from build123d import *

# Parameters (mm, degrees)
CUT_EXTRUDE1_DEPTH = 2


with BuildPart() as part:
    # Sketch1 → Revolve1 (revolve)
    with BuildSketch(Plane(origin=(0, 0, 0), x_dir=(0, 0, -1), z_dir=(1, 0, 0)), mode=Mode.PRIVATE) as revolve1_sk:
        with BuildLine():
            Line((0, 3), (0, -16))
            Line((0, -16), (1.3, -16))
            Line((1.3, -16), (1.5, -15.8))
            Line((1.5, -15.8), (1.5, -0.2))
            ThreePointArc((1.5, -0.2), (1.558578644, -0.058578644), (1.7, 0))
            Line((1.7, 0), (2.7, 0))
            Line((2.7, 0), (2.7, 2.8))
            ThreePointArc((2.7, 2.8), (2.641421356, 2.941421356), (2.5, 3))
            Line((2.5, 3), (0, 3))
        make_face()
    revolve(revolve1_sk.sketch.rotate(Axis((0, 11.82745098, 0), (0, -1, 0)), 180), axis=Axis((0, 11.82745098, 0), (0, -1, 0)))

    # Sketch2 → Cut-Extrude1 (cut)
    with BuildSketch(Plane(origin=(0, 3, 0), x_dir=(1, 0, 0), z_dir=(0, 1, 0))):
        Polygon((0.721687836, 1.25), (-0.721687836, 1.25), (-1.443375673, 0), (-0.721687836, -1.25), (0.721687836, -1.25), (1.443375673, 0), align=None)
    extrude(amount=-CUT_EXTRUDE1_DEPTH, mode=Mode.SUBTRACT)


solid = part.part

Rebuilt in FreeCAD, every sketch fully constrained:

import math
import FreeCAD as App
import Part
import Sketcher
Q = App.Units.Quantity

doc = App.newDocument("Part")
body = doc.addObject("PartDesign::Body", "Body")

# Sketch on YZ plane
sketch1 = doc.addObject("Sketcher::SketchObject", "Sketch")
body.addObject(sketch1)
sketch1.AttachmentSupport = (doc.YZ_Plane, [""])
sketch1.MapMode = "FlatFace"
sketch1.addGeometry([
    Part.LineSegment(App.Vector(3, 0, 0), App.Vector(-16, 0, 0)),  # 0
    Part.LineSegment(App.Vector(-16, 0, 0), App.Vector(-16, -1.3, 0)),  # 1
    Part.LineSegment(App.Vector(-16, -1.3, 0), App.Vector(-15.8, -1.5, 0)),  # 2
    Part.LineSegment(App.Vector(-15.8, -1.5, 0), App.Vector(-0.2, -1.5, 0)),  # 3
    Part.ArcOfCircle(Part.Circle(App.Vector(-0.2, -1.7, 0), App.Vector(0, 0, 1), 0.2), math.radians(0), math.radians(90)),  # 4
    Part.LineSegment(App.Vector(0, -1.7, 0), App.Vector(0, -2.7, 0)),  # 5
    Part.LineSegment(App.Vector(0, -2.7, 0), App.Vector(2.8, -2.7, 0)),  # 6
    Part.ArcOfCircle(Part.Circle(App.Vector(2.8, -2.5, 0), App.Vector(0, 0, 1), 0.2), math.radians(-90), math.radians(0)),  # 7
    Part.LineSegment(App.Vector(3, -2.5, 0), App.Vector(3, 0, 0)),  # 8
], False)
sketch1.addConstraint([
    Sketcher.Constraint("Coincident", 0, 2, 1, 1),
    Sketcher.Constraint("Coincident", 1, 2, 2, 1),
    Sketcher.Constraint("Coincident", 2, 2, 3, 1),
    Sketcher.Constraint("Tangent", 3, 2, 4, 2),
    Sketcher.Constraint("Tangent", 4, 1, 5, 1),
    Sketcher.Constraint("Coincident", 5, 2, 6, 1),
    Sketcher.Constraint("Tangent", 6, 2, 7, 1),
    Sketcher.Constraint("Tangent", 7, 2, 8, 1),
    Sketcher.Constraint("Coincident", 8, 2, 0, 1),
    Sketcher.Constraint("Horizontal", 0),
    Sketcher.Constraint("Vertical", 1),
    Sketcher.Constraint("Horizontal", 3),
    Sketcher.Constraint("Vertical", 5),
    Sketcher.Constraint("Horizontal", 6),
    Sketcher.Constraint("Vertical", 8),
    Sketcher.Constraint("Equal", 4, 7),
    Sketcher.Constraint("PointOnObject", 0, 2, -1),
    Sketcher.Constraint("PointOnObject", 4, 1, -2),
    Sketcher.Constraint("Radius", 4, 0.2),
    Sketcher.Constraint("DistanceX", 0, 2, 0, 1, 19.0),
    Sketcher.Constraint("DistanceY", 5, 2, 5, 1, 1.0),
    Sketcher.Constraint("Angle", 2, Q("-45 deg")),
    Sketcher.Constraint("DistanceX", 3, 1, 3, 2, 15.6),
    Sketcher.Constraint("DistanceX", 6, 1, 6, 2, 2.8),
    Sketcher.Constraint("DistanceY", 1, 2, 1, 1, 1.3),
])
revolution = doc.addObject("PartDesign::Revolution", "Revolution")
body.addObject(revolution)
revolution.Profile = sketch1
revolution.ReferenceAxis = (sketch1, ["H_Axis"])
revolution.Angle = 360

# Sketch on XZ plane
sketch2 = doc.addObject("Sketcher::SketchObject", "Sketch001")
body.addObject(sketch2)
sketch2.AttachmentSupport = (doc.XZ_Plane, [""])
sketch2.MapMode = "FlatFace"
sketch2.AttachmentOffset = App.Placement(App.Vector(0, 0, -3), App.Rotation())
sketch2.addGeometry([
    Part.LineSegment(App.Vector(0.7, -1.2, 0), App.Vector(-0.7, -1.2, 0)),  # 0
    Part.LineSegment(App.Vector(-0.7, -1.2, 0), App.Vector(-1.4, 0, 0)),  # 1
    Part.LineSegment(App.Vector(-1.4, 0, 0), App.Vector(-0.7, 1.2, 0)),  # 2
    Part.LineSegment(App.Vector(-0.7, 1.2, 0), App.Vector(0.7, 1.2, 0)),  # 3
    Part.LineSegment(App.Vector(0.7, 1.2, 0), App.Vector(1.4, 0, 0)),  # 4
    Part.LineSegment(App.Vector(1.4, 0, 0), App.Vector(0.7, -1.2, 0)),  # 5
], False)
sketch2.addConstraint([
    Sketcher.Constraint("Coincident", 0, 2, 1, 1),
    Sketcher.Constraint("Coincident", 1, 2, 2, 1),
    Sketcher.Constraint("Coincident", 2, 2, 3, 1),
    Sketcher.Constraint("Coincident", 3, 2, 4, 1),
    Sketcher.Constraint("Coincident", 4, 2, 5, 1),
    Sketcher.Constraint("Coincident", 5, 2, 0, 1),
    Sketcher.Constraint("Horizontal", 0),
    Sketcher.Constraint("Horizontal", 3),
    Sketcher.Constraint("Symmetric", 0, 2, 3, 2, -1, 1),
    Sketcher.Constraint("Symmetric", 1, 2, 4, 2, -1, 1),
    Sketcher.Constraint("PointOnObject", 1, 2, -1),
    Sketcher.Constraint("Parallel", 2, 5),
    Sketcher.Constraint("Vertical", 0, 2, 2, 2),
    Sketcher.Constraint("Angle", 1, Q("120 deg")),
    Sketcher.Constraint("DistanceY", 0, 2, 2, 2, 2.5),
    Sketcher.Constraint("DistanceX", 0, 2, 0, 1, 1.443376),
])
pocket1 = doc.addObject("PartDesign::Pocket", "Pocket")
body.addObject(pocket1)
pocket1.Profile = sketch2
pocket1.Length = 2
pocket1.Reversed = True

doc.recompute()
